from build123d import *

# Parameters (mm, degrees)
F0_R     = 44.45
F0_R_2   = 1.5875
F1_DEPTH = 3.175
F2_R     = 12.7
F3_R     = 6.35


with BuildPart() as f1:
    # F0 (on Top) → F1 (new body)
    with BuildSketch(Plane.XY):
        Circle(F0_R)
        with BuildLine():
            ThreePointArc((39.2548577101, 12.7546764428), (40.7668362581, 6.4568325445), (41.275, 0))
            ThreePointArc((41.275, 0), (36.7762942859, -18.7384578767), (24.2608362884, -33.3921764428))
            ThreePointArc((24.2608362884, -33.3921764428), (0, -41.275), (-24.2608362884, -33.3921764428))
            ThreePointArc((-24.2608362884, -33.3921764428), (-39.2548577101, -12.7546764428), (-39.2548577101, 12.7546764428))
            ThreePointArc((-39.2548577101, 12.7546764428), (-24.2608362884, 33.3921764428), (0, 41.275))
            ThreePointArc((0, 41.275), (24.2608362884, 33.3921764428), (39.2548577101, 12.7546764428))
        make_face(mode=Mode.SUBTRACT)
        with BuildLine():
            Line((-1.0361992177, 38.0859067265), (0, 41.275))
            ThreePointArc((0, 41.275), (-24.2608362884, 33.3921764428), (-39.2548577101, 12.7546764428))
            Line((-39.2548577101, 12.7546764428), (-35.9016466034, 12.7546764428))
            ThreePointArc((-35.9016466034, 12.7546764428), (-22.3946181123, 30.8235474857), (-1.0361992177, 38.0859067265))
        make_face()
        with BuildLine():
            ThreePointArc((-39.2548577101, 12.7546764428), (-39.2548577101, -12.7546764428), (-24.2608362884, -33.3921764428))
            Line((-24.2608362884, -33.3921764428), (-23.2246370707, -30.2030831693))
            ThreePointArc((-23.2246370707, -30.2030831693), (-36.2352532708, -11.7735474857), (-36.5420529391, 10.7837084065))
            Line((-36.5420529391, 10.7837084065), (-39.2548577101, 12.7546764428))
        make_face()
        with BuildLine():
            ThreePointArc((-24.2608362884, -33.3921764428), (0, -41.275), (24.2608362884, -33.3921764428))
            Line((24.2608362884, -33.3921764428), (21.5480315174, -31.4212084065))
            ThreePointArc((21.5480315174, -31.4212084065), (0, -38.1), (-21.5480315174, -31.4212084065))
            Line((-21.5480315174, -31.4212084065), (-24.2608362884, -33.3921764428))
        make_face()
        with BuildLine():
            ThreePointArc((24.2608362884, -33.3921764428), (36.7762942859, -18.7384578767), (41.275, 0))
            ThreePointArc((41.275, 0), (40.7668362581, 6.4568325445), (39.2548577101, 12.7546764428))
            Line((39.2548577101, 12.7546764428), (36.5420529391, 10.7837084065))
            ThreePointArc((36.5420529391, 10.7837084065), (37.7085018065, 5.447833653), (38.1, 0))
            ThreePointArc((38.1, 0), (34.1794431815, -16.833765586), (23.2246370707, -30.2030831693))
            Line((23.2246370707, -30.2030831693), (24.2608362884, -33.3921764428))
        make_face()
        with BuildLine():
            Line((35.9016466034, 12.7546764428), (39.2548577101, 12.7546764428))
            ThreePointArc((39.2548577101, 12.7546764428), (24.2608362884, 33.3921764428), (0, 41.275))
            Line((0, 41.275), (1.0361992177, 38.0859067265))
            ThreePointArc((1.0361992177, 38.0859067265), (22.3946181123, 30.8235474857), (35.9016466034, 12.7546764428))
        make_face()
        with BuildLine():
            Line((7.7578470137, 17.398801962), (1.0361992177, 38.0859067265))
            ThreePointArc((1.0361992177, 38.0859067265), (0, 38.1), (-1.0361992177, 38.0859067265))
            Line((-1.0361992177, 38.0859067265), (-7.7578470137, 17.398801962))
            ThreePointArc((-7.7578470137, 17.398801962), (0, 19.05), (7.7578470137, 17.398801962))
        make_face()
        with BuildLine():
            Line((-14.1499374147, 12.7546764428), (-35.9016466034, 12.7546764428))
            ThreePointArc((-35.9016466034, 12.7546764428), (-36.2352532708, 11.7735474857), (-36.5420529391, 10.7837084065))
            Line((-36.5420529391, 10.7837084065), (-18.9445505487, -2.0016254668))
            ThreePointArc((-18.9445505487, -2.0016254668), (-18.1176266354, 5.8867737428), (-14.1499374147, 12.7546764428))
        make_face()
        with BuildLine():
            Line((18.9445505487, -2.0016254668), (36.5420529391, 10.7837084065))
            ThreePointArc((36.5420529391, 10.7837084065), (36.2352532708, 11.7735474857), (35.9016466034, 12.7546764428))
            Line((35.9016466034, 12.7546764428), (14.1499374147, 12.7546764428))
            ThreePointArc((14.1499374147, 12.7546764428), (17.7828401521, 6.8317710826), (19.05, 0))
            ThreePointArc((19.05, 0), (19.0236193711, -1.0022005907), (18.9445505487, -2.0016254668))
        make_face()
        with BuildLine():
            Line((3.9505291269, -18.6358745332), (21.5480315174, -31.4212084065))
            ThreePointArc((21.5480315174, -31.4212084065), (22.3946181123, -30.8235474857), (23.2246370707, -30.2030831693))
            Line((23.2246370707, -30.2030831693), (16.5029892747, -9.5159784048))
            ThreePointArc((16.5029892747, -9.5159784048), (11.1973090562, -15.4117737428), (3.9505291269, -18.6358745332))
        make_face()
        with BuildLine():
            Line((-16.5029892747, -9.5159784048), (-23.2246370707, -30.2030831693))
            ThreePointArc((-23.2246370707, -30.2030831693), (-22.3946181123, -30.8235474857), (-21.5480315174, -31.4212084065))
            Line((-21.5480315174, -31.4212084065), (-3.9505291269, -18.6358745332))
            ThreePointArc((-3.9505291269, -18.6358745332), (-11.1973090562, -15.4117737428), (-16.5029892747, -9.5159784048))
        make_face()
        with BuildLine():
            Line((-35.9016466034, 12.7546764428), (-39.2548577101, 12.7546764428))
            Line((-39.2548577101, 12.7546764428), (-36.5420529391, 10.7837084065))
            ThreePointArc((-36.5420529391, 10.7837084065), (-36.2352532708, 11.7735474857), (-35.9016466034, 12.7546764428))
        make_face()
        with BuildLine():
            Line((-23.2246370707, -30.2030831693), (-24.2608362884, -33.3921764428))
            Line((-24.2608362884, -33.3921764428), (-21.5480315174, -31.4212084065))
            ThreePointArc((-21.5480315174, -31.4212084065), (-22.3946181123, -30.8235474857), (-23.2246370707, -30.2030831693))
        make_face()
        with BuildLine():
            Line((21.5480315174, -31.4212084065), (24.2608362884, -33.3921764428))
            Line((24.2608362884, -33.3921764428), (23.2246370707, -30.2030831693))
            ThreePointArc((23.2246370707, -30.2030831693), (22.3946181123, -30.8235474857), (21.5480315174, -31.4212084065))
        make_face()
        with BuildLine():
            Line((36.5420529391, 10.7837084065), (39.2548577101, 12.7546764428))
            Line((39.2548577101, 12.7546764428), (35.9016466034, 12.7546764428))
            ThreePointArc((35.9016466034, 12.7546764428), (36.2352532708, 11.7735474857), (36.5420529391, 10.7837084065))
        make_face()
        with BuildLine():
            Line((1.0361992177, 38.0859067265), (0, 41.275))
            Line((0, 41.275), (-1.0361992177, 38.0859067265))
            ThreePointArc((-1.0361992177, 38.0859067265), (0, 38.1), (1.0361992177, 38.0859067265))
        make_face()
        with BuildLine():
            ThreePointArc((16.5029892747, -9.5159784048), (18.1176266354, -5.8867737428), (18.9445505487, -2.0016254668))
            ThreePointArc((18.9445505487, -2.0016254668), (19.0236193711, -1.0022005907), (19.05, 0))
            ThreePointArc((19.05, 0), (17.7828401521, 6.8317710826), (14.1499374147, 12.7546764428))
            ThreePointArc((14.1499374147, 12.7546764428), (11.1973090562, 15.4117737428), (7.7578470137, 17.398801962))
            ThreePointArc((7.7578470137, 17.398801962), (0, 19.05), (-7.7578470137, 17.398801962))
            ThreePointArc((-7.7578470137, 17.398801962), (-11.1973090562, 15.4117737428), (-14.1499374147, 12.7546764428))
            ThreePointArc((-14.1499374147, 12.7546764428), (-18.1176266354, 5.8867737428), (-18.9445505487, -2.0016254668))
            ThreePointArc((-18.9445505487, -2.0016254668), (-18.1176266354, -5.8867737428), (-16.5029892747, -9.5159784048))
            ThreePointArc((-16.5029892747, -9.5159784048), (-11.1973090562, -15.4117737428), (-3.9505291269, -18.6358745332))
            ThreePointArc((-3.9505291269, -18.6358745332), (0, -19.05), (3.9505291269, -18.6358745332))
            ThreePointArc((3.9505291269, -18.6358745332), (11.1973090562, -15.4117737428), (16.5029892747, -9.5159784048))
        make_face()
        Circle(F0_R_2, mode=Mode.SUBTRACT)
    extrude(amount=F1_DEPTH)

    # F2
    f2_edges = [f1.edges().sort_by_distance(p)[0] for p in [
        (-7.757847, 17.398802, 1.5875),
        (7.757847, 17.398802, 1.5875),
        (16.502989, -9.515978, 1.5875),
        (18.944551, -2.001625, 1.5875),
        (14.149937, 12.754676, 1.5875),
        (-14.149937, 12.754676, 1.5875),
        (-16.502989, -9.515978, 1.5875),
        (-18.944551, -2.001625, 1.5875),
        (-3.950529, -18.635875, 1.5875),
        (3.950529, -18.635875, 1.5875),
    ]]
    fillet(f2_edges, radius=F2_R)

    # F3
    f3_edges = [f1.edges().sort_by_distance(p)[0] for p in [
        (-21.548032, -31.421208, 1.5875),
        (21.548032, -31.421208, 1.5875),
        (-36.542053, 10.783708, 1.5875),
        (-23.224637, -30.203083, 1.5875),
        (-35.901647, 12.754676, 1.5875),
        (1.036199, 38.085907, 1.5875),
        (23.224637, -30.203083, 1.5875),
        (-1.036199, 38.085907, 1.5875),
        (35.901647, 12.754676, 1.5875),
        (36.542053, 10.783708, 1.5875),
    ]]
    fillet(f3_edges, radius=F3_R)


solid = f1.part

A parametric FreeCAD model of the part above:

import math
import FreeCAD as App
import Part
import Sketcher
from FreeCAD import Vector
Q = App.Units.Quantity


def edges_at(feature, points):
    """Names of the edges that pass closest to the given points."""
    edges = feature.Shape.Edges
    near = lambda p: min(range(len(edges)), key=lambda i: edges[i].distToShape(Part.Vertex(*p))[0])
    return sorted({f"Edge{near(p) + 1}" for p in points})

doc = App.newDocument("Part")
params = doc.addObject("Spreadsheet::Sheet", "Params")
for row, (alias, value) in enumerate([
    ("sketch1_diameter", "3.5 in"),
    ("sketch1_radius", "1.5 in"),
    ("sketch1_radius2", "0.75 in"),
    ("sketch1_diameter2", "0.125 in"),
    ("pad1_length", "0.125 in"),
    ("fillet_radius", "0.5 in"),
    ("fillet2_radius", "0.25 in"),
], start=1):
    params.set(f"A{row}", alias)
    params.set(f"B{row}", "=" + value)
    params.setAlias(f"B{row}", alias)

body = doc.addObject("PartDesign::Body", "Body")

# Sketch on XY plane
sketch1 = body.newObject("Sketcher::SketchObject", "Sketch")
sketch1.AttachmentSupport = (doc.getObject("XY_Plane"), [""])
sketch1.MapMode = "FlatFace"
sketch1.addGeometry([
    Part.Circle(Vector(0, 0, 0), Vector(0, 0, 1), 44.5),  # 0
    Part.LineSegment(Vector(4, -18.6, 0), Vector(21.5, -31.4, 0)),  # 1
    Part.ArcOfCircle(Part.Circle(Vector(0, 0, 0), Vector(0, 0, 1), 38.1), math.radians(-124), math.radians(-56)),  # 2
    Part.LineSegment(Vector(-21.5, -31.4, 0), Vector(-4, -18.6, 0)),  # 3
    Part.ArcOfCircle(Part.Circle(Vector(0, 0, 0), Vector(0, 0, 1), 19.1), math.radians(-102), math.radians(-78)),  # 4
    Part.LineSegment(Vector(-16.5, -9.5, 0), Vector(-23.2, -30.2, 0)),  # 5
    Part.ArcOfCircle(Part.Circle(Vector(0, 0, 0), Vector(0, 0, 1), 38.1), math.radians(164), math.radians(232)),  # 6
    Part.LineSegment(Vector(-36.5, 10.8, 0), Vector(-18.9, -2, 0)),  # 7
    Part.ArcOfCircle(Part.Circle(Vector(0, 0, 0), Vector(0, 0, 1), 19.1), math.radians(-174), math.radians(-150)),  # 8
    Part.LineSegment(Vector(18.9, -2, 0), Vector(36.5, 10.8, 0)),  # 9
    Part.ArcOfCircle(Part.Circle(Vector(0, 0, 0), Vector(0, 0, 1), 38.1), math.radians(0), math.radians(16.44)),  # 10
    Part.ArcOfCircle(Part.Circle(Vector(0, 0, 0), Vector(0, 0, 1), 38.1), math.radians(-52), math.radians(0)),  # 11
    Part.LineSegment(Vector(23.2, -30.2, 0), Vector(16.5, -9.5, 0)),  # 12
    Part.ArcOfCircle(Part.Circle(Vector(0, 0, 0), Vector(0, 0, 1), 19.1), math.radians(-30), math.radians(-6)),  # 13
    Part.Circle(Vector(0, 0, 0), Vector(0, 0, 1), 1.6),  # 14
    Part.ArcOfCircle(Part.Circle(Vector(0, 0, 0), Vector(0, 0, 1), 38.1), math.radians(92), math.radians(160)),  # 15
    Part.LineSegment(Vector(-1, 38.1, 0), Vector(-7.8, 17.4, 0)),  # 16
    Part.ArcOfCircle(Part.Circle(Vector(0, 0, 0), Vector(0, 0, 1), 19.1), math.radians(114), math.radians(138)),  # 17
    Part.LineSegment(Vector(-14.1, 12.8, 0), Vector(-35.9, 12.8, 0)),  # 18
    Part.LineSegment(Vector(7.8, 17.4, 0), Vector(1, 38.1, 0)),  # 19
    Part.ArcOfCircle(Part.Circle(Vector(0, 0, 0), Vector(0, 0, 1), 38.1), math.radians(20), math.radians(88)),  # 20
    Part.LineSegment(Vector(35.9, 12.8, 0), Vector(14.1, 12.8, 0)),  # 21
    Part.ArcOfCircle(Part.Circle(Vector(0, 0, 0), Vector(0, 0, 1), 19.1), math.radians(42), math.radians(66)),  # 22
], False)
sketch1.addConstraint([
    Sketcher.Constraint("Coincident", 1, 2, 2, 2),
    Sketcher.Constraint("Coincident", 2, 1, 3, 1),
    Sketcher.Constraint("Coincident", 3, 2, 4, 1),
    Sketcher.Constraint("Coincident", 4, 2, 1, 1),
    Sketcher.Constraint("Coincident", 5, 2, 6, 2),
    Sketcher.Constraint("Coincident", 6, 1, 7, 1),
    Sketcher.Constraint("Coincident", 7, 2, 8, 1),
    Sketcher.Constraint("Coincident", 8, 2, 5, 1),
    Sketcher.Constraint("Coincident", 9, 2, 10, 2),
    Sketcher.Constraint("Tangent", 10, 1, 11, 2),
    Sketcher.Constraint("Coincident", 11, 1, 12, 1),
    Sketcher.Constraint("Coincident", 12, 2, 13, 1),
    Sketcher.Constraint("Coincident", 13, 2, 9, 1),
    Sketcher.Constraint("Coincident", 15, 1, 16, 1),
    Sketcher.Constraint("Coincident", 16, 2, 17, 1),
    Sketcher.Constraint("Coincident", 17, 2, 18, 1),
    Sketcher.Constraint("Coincident", 18, 2, 15, 2),
    Sketcher.Constraint("Coincident", 19, 2, 20, 2),
    Sketcher.Constraint("Coincident", 20, 1, 21, 1),
    Sketcher.Constraint("Coincident", 21, 2, 22, 1),
    Sketcher.Constraint("Coincident", 22, 2, 19, 1),
    Sketcher.Constraint("Horizontal", 18),
    Sketcher.Constraint("Horizontal", 21),
    Sketcher.Constraint("Coincident", 0, 3, -1, 1),
    Sketcher.Constraint("Coincident", 2, 3, -1, 1),
    Sketcher.Constraint("Coincident", 4, 3, -1, 1),
    Sketcher.Constraint("Coincident", 6, 3, -1, 1),
    Sketcher.Constraint("Coincident", 8, 3, -1, 1),
    Sketcher.Constraint("Coincident", 10, 3, -1, 1),
    Sketcher.Constraint("Coincident", 13, 3, -1, 1),
    Sketcher.Constraint("Coincident", 14, 3, -1, 1),
    Sketcher.Constraint("Coincident", 15, 3, -1, 1),
    Sketcher.Constraint("Coincident", 17, 3, -1, 1),
    Sketcher.Constraint("Coincident", 20, 3, -1, 1),
    Sketcher.Constraint("Coincident", 22, 3, -1, 1),
    Sketcher.Constraint("Equal", 2, 6),
    Sketcher.Constraint("Equal", 4, 8),
    Sketcher.Constraint("Equal", 6, 10),
    Sketcher.Constraint("Equal", 10, 11),
    Sketcher.Constraint("Equal", 8, 13),
    Sketcher.Constraint("Equal", 11, 15),
    Sketcher.Constraint("Equal", 13, 17),
    Sketcher.Constraint("Equal", 15, 20),
    Sketcher.Constraint("Equal", 17, 22),
    Sketcher.Constraint("PointOnObject", 10, 1, -1),
    Sketcher.Constraint("Parallel", 1, 7),
    Sketcher.Constraint("Parallel", 3, 9),
    Sketcher.Constraint("Parallel", 5, 16),
    Sketcher.Constraint("Parallel", 12, 19),
    Sketcher.Constraint("Horizontal", 1, 2, 2, 1),
    Sketcher.Constraint("Horizontal", 3, 2, 4, 2),
    Sketcher.Constraint("Horizontal", 6, 1, 9, 2),
    Sketcher.Constraint("Horizontal", 5, 2, 11, 1),
    Sketcher.Constraint("Horizontal", 8, 2, 12, 2),
    Sketcher.Constraint("Horizontal", 15, 1, 19, 2),
    Sketcher.Constraint("Horizontal", 18, 2, 20, 1),
    Sketcher.Constraint("Equal", 3, 5),
    Sketcher.Constraint("Equal", 5, 7),
    Sketcher.Constraint("Equal", 12, 16),
    Sketcher.Constraint("Diameter", 0, Q("3.5 in")),
    Sketcher.Constraint("Radius", 2, Q("1.5 in")),
    Sketcher.Constraint("Radius", 4, Q("0.75 in")),
    Sketcher.Constraint("Diameter", 14, Q("0.125 in")),
    Sketcher.Constraint("Angle", 1, Q("-36 deg")),
    Sketcher.Constraint("Angle", 5, Q("-108 deg")),
    Sketcher.Constraint("DistanceX", 18, 2, 18, 1, 21.751709),
    Sketcher.Constraint("DistanceX", 15, 1, -1, 1, 1.036199),
])
sketch1.setExpression("Constraints[59]", "Params.sketch1_diameter")
sketch1.setExpression("Constraints[60]", "Params.sketch1_radius")
sketch1.setExpression("Constraints[61]", "Params.sketch1_radius2")
sketch1.setExpression("Constraints[62]", "Params.sketch1_diameter2")
pad1 = body.newObject("PartDesign::Pad", "Pad")
pad1.Profile = sketch1
pad1.setExpression("Length", "Params.pad1_length")
doc.recompute()

fillet = body.newObject("PartDesign::Fillet", "Fillet")
fillet.Base = (pad1, edges_at(pad1, [
    (-7.758, 17.399, 1.587),
    (7.758, 17.399, 1.587),
    (16.503, -9.516, 1.587),
    (18.945, -2.002, 1.587),
    (14.15, 12.755, 1.587),
    (-14.15, 12.755, 1.587),
    (-16.503, -9.516, 1.587),
    (-18.945, -2.002, 1.587),
    (-3.951, -18.636, 1.587),
    (3.951, -18.636, 1.587),
]))
fillet.setExpression("Radius", "Params.fillet_radius")
doc.recompute()

fillet2 = body.newObject("PartDesign::Fillet", "Fillet001")
fillet2.Base = (fillet, edges_at(fillet, [
    (-21.548, -31.421, 1.587),
    (21.548, -31.421, 1.587),
    (-36.542, 10.784, 1.587),
    (-23.225, -30.203, 1.587),
    (-35.902, 12.755, 1.587),
    (1.036, 38.086, 1.587),
    (23.225, -30.203, 1.587),
    (-1.036, 38.086, 1.587),
    (35.902, 12.755, 1.587),
    (36.542, 10.784, 1.587),
]))
fillet2.setExpression("Radius", "Params.fillet2_radius")

doc.recompute()
